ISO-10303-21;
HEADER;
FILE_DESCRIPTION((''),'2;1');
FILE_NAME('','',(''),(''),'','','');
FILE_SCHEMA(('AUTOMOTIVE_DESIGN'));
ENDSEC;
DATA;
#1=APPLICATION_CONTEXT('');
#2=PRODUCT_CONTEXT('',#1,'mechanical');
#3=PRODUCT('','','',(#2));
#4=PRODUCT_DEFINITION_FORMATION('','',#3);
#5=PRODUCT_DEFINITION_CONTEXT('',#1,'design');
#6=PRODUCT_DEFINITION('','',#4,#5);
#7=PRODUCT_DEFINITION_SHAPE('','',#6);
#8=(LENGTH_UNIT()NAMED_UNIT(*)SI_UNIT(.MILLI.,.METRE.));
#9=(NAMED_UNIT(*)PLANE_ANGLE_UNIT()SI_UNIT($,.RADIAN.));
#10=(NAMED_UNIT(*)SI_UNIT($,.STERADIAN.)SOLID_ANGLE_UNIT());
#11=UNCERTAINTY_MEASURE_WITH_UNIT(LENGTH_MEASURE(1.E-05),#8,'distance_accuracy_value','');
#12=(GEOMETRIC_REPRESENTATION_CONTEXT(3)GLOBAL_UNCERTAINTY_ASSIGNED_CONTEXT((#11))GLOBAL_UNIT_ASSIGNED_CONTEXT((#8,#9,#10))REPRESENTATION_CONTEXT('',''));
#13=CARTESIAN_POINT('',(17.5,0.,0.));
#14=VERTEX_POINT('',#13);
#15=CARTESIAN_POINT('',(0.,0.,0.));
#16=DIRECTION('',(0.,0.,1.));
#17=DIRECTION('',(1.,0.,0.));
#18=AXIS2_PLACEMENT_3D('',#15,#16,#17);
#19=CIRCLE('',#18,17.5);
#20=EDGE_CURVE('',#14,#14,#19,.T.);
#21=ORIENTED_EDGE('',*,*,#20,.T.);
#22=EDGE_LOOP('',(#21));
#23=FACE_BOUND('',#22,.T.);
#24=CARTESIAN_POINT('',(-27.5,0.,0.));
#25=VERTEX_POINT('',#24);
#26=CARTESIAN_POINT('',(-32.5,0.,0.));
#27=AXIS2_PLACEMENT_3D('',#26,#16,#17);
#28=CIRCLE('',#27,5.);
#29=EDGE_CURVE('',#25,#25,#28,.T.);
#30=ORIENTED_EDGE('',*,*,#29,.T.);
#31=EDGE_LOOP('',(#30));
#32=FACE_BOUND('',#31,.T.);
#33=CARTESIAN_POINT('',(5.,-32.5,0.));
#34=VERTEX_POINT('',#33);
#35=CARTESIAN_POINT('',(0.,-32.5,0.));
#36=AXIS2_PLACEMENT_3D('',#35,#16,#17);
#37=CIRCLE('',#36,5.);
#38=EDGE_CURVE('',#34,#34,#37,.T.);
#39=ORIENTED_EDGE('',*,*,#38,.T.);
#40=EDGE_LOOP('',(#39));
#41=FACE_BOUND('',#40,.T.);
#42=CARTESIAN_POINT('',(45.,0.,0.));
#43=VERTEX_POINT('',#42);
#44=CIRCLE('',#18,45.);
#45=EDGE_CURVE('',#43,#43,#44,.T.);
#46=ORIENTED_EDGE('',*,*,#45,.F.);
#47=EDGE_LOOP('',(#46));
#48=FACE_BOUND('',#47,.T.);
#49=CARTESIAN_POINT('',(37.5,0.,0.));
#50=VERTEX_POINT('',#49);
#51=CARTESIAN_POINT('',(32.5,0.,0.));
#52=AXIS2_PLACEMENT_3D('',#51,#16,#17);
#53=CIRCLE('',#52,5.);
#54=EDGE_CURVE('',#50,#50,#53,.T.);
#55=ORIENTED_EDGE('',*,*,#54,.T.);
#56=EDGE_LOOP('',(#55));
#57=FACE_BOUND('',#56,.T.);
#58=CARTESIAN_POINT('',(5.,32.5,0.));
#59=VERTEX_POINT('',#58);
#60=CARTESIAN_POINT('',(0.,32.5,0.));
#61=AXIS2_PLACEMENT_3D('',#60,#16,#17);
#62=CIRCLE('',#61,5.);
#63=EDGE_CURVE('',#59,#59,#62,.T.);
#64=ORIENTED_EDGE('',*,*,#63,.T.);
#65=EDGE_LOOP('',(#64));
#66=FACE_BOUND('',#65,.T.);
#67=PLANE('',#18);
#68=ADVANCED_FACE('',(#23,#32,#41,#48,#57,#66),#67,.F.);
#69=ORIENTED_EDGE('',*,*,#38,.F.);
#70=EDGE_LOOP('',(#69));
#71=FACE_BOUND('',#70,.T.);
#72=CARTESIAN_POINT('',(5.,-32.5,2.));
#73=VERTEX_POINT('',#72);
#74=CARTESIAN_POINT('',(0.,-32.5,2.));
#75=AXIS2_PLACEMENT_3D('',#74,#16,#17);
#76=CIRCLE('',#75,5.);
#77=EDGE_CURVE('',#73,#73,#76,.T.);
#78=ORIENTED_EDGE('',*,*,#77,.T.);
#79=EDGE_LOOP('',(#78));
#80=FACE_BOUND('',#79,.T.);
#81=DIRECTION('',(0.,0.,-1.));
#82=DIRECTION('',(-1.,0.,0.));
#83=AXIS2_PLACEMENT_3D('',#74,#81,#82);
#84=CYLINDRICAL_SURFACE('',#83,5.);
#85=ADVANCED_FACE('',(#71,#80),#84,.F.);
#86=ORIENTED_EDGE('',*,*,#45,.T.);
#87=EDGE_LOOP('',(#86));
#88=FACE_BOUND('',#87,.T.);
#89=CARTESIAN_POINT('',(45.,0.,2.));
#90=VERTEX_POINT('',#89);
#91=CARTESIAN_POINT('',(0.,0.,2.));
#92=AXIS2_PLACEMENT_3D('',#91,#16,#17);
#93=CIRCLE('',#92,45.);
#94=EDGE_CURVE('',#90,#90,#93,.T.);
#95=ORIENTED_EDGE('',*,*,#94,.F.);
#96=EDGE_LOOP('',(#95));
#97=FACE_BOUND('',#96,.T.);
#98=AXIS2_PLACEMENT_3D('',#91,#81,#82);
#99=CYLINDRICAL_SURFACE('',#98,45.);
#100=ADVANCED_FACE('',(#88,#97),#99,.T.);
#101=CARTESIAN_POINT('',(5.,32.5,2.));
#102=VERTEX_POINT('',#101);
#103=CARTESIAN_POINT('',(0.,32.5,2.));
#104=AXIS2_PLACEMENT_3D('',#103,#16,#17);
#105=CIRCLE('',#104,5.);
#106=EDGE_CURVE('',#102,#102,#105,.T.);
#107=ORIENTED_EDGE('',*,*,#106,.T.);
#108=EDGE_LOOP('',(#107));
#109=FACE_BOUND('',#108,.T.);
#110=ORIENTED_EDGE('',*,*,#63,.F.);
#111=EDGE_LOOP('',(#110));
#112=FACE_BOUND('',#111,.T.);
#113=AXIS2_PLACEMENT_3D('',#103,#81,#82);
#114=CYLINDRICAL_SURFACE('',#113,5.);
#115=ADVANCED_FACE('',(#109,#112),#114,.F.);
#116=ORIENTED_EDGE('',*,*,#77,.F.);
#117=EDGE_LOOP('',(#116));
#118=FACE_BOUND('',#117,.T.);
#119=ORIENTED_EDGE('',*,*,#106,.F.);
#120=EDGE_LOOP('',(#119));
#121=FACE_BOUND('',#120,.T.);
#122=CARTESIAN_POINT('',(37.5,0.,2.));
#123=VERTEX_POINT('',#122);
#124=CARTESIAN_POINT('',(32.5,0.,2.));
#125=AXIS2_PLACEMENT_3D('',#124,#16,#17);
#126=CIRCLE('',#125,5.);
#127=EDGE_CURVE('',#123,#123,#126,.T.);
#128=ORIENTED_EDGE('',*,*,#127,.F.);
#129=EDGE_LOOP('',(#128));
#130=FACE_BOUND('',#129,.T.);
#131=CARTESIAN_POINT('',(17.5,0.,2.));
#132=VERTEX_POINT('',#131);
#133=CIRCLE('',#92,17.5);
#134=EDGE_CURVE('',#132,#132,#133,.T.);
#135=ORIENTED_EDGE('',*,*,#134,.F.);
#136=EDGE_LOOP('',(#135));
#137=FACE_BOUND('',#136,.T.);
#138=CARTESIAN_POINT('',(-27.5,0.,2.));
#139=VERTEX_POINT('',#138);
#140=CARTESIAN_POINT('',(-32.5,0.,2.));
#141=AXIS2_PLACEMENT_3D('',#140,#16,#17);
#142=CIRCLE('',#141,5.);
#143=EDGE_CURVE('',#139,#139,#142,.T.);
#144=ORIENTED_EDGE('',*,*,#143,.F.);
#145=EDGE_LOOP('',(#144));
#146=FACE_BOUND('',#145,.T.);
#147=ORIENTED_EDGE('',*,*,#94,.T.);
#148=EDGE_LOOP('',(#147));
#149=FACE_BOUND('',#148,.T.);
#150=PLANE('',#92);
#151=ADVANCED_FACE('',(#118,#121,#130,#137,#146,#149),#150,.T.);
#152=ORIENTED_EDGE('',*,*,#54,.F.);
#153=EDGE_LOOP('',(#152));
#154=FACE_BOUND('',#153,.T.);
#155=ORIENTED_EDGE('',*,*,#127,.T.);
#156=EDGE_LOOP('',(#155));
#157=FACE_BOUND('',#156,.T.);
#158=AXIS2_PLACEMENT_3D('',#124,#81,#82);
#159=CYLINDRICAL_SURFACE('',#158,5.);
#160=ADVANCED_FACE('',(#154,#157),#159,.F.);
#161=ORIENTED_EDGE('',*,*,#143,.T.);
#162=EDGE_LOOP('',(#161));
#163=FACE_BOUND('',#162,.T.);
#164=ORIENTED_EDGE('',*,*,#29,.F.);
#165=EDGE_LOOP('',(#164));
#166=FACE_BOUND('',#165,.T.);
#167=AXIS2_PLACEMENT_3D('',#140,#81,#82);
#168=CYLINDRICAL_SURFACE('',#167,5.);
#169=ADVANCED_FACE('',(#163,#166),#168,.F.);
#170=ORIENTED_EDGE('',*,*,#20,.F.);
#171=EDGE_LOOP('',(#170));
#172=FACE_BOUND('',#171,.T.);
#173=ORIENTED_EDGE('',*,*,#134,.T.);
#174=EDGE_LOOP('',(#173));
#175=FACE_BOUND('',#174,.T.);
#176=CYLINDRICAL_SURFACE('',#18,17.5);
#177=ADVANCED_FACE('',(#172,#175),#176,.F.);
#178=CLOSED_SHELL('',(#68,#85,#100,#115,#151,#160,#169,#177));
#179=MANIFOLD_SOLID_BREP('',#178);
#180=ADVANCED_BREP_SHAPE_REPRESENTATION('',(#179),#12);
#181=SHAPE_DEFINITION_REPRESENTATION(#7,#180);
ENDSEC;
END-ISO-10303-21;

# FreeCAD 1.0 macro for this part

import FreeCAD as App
import Part
import Sketcher
from FreeCAD import Vector
Q = App.Units.Quantity

doc = App.newDocument("Part")
body = doc.addObject("PartDesign::Body", "Body")

# Sketch on XY plane
sketch1 = doc.addObject("Sketcher::SketchObject", "Sketch")
body.addObject(sketch1)
sketch1.AttachmentSupport = (doc.XY_Plane, [""])
sketch1.MapMode = "FlatFace"
sketch1.addGeometry([
    Part.Circle(Vector(0, 0, 0), Vector(0, 0, 1), 45),  # 0
    Part.Circle(Vector(0, -32.5, 0), Vector(0, 0, 1), 5),  # 1
    Part.Circle(Vector(-32.5, 0, 0), Vector(0, 0, 1), 5),  # 2
    Part.Circle(Vector(32.5, 0, 0), Vector(0, 0, 1), 5),  # 3
    Part.Circle(Vector(0, 32.5, 0), Vector(0, 0, 1), 5),  # 4
], False)
sketch1.addConstraint([
    Sketcher.Constraint("Coincident", 0, 3, -1, 1),
    Sketcher.Constraint("Equal", 1, 2),
    Sketcher.Constraint("Equal", 2, 3),
    Sketcher.Constraint("Equal", 3, 4),
    Sketcher.Constraint("Symmetric", 2, 3, 3, 3, -1, 1),
    Sketcher.Constraint("Symmetric", 1, 3, 4, 3, -1, 1),
    Sketcher.Constraint("PointOnObject", 1, 3, -2),
    Sketcher.Constraint("PointOnObject", 2, 3, -1),
    Sketcher.Constraint("Diameter", 0, Q("90 mm")),
    Sketcher.Constraint("Diameter", 1, Q("10 mm")),
    Sketcher.Constraint("DistanceX", 2, 3, 3, 3, Q("65 mm")),
    Sketcher.Constraint("DistanceY", 1, 3, 4, 3, Q("65 mm")),
])
pad1 = doc.addObject("PartDesign::Pad", "Pad")
body.addObject(pad1)
pad1.Profile = sketch1
pad1.Length = 2

# Sketch on XY plane
sketch2 = doc.addObject("Sketcher::SketchObject", "Sketch001")
body.addObject(sketch2)
sketch2.AttachmentSupport = (doc.XY_Plane, [""])
sketch2.MapMode = "FlatFace"
sketch2.AttachmentOffset = App.Placement(Vector(0, 0, 2), App.Rotation())
sketch2.addGeometry(Part.Circle(Vector(0, 0, 0), Vector(0, 0, 1), 17.5), False)
sketch2.addConstraint([
    Sketcher.Constraint("Coincident", 0, 3, -1, 1),
    Sketcher.Constraint("Diameter", 0, Q("35 mm")),
])
pocket1 = doc.addObject("PartDesign::Pocket", "Pocket")
body.addObject(pocket1)
pocket1.Profile = sketch2
pocket1.Length = 2

doc.recompute()
